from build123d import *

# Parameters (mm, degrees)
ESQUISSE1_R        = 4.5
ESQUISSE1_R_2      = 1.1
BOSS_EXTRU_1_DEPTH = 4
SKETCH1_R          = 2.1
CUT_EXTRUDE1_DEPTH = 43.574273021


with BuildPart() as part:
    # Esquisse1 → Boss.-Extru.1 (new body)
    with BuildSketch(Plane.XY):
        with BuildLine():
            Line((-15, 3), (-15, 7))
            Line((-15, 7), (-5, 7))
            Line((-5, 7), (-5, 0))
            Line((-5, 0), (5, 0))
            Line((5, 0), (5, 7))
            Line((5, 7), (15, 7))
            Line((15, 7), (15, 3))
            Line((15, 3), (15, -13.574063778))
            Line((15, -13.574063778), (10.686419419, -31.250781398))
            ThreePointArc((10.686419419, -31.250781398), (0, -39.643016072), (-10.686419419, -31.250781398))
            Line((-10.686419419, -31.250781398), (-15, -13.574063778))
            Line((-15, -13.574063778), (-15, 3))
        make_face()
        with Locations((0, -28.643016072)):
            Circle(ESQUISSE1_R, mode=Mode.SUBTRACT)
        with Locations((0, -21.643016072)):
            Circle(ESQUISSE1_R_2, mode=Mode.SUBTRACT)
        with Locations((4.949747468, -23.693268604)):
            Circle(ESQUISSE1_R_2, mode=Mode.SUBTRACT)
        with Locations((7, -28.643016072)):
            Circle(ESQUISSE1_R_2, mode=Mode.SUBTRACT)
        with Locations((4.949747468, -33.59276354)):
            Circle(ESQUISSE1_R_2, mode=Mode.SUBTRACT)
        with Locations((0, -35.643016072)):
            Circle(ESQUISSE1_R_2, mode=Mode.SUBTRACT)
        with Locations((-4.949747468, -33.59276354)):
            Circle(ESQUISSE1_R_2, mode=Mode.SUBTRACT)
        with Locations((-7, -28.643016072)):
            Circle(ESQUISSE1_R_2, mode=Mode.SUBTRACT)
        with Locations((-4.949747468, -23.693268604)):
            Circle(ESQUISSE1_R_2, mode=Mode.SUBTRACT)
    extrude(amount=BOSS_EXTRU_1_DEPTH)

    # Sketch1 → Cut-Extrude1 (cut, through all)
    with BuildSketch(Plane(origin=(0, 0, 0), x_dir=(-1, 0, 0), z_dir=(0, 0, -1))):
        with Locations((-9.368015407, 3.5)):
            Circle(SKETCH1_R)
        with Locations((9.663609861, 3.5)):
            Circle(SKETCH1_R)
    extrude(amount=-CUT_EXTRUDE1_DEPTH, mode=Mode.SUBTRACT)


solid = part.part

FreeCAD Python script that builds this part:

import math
import FreeCAD as App
import Part
import Sketcher
Q = App.Units.Quantity

doc = App.newDocument("Part")
body = doc.addObject("PartDesign::Body", "Body")

# Sketch on XY plane
sketch1 = body.newObject("Sketcher::SketchObject", "Sketch")
sketch1.AttachmentSupport = (doc.getObject("XY_Plane"), [""])
sketch1.MapMode = "FlatFace"
sketch1.addGeometry([
    Part.LineSegment(App.Vector(-5, 7, 0), App.Vector(-15, 7, 0)),  # 0
    Part.LineSegment(App.Vector(-15, 7, 0), App.Vector(-15, -13.574064, 0)),  # 1
    Part.LineSegment(App.Vector(-15, -13.574064, 0), App.Vector(-10.686419, -31.250781, 0)),  # 2
    Part.ArcOfCircle(Part.Circle(App.Vector(0, -28.643016, 0), App.Vector(0, 0, 1), 11), math.radians(-166.286351), math.radians(-13.713649)),  # 3
    Part.LineSegment(App.Vector(10.686419, -31.250781, 0), App.Vector(15, -13.574064, 0)),  # 4
    Part.LineSegment(App.Vector(15, -13.574064, 0), App.Vector(15, 7, 0)),  # 5
    Part.LineSegment(App.Vector(15, 7, 0), App.Vector(5, 7, 0)),  # 6
    Part.LineSegment(App.Vector(5, 7, 0), App.Vector(5, 0, 0)),  # 7
    Part.LineSegment(App.Vector(5, 0, 0), App.Vector(-5, 0, 0)),  # 8
    Part.LineSegment(App.Vector(-5, 0, 0), App.Vector(-5, 7, 0)),  # 9
    Part.Circle(App.Vector(4.949747, -33.592764, 0), App.Vector(0, 0, 1), 1.1),  # 10
    Part.Circle(App.Vector(0, -35.643016, 0), App.Vector(0, 0, 1), 1.1),  # 11
    Part.Circle(App.Vector(-4.949747, -33.592764, 0), App.Vector(0, 0, 1), 1.1),  # 12
    Part.Circle(App.Vector(7, -28.643016, 0), App.Vector(0, 0, 1), 1.1),  # 13
    Part.Circle(App.Vector(4.949747, -23.693269, 0), App.Vector(0, 0, 1), 1.1),  # 14
    Part.Circle(App.Vector(0, -28.643016, 0), App.Vector(0, 0, 1), 4.5),  # 15
    Part.Circle(App.Vector(-7, -28.643016, 0), App.Vector(0, 0, 1), 1.1),  # 16
    Part.Circle(App.Vector(0, -21.643016, 0), App.Vector(0, 0, 1), 1.1),  # 17
    Part.Circle(App.Vector(-4.949747, -23.693269, 0), App.Vector(0, 0, 1), 1.1),  # 18
], False)
sketch1.addConstraint([
    Sketcher.Constraint("Coincident", 0, 2, 1, 1),
    Sketcher.Constraint("Coincident", 1, 2, 2, 1),
    Sketcher.Constraint("Tangent", 2, 2, 3, 1),
    Sketcher.Constraint("Tangent", 3, 2, 4, 1),
    Sketcher.Constraint("Coincident", 4, 2, 5, 1),
    Sketcher.Constraint("Coincident", 5, 2, 6, 1),
    Sketcher.Constraint("Coincident", 6, 2, 7, 1),
    Sketcher.Constraint("Coincident", 7, 2, 8, 1),
    Sketcher.Constraint("Coincident", 8, 2, 9, 1),
    Sketcher.Constraint("Coincident", 9, 2, 0, 1),
    Sketcher.Constraint("Horizontal", 0),
    Sketcher.Constraint("Vertical", 1),
    Sketcher.Constraint("Vertical", 5),
    Sketcher.Constraint("Horizontal", 6),
    Sketcher.Constraint("Vertical", 7),
    Sketcher.Constraint("Horizontal", 8),
    Sketcher.Constraint("Vertical", 9),
    Sketcher.Constraint("Coincident", 15, 3, 3, 3),
    Sketcher.Constraint("Equal", 10, 11),
    Sketcher.Constraint("Equal", 11, 12),
    Sketcher.Constraint("Equal", 12, 13),
    Sketcher.Constraint("Equal", 13, 14),
    Sketcher.Constraint("Equal", 14, 16),
    Sketcher.Constraint("Equal", 16, 17),
    Sketcher.Constraint("Equal", 17, 18),
    Sketcher.Constraint("Symmetric", 7, 2, 8, 2, -1, 1),
    Sketcher.Constraint("Symmetric", 10, 3, 12, 3, -2),
    Sketcher.Constraint("Symmetric", 13, 3, 16, 3, -2),
    Sketcher.Constraint("Symmetric", 14, 3, 18, 3, -2),
    Sketcher.Constraint("Symmetric", 2, 2, 3, 2, -2),
    Sketcher.Constraint("Symmetric", 0, 2, 5, 2, -2),
    Sketcher.Constraint("PointOnObject", 11, 3, -2),
    Sketcher.Constraint("PointOnObject", 17, 3, -2),
    Sketcher.Constraint("Horizontal", 3, 3, 13, 3),
    Sketcher.Constraint("Vertical", 10, 3, 14, 3),
    Sketcher.Constraint("Equal", 6, 8),
    Sketcher.Constraint("Diameter", 15, Q("9 mm")),
    Sketcher.Constraint("Radius", 3, Q("11 mm")),
    Sketcher.Constraint("Diameter", 10, Q("2.2 mm")),
    Sketcher.Constraint("DistanceX", 0, 2, 0, 1, Q("10 mm")),
    Sketcher.Constraint("DistanceY", 7, 2, 7, 1, Q("7 mm")),
    Sketcher.Constraint("DistanceX", -1, 1, 13, 3, Q("7 mm")),
    Sketcher.Constraint("DistanceY", 11, 3, 3, 3, Q("7 mm")),
    Sketcher.Constraint("DistanceY", 3, 3, 17, 3, Q("7 mm")),
    Sketcher.Constraint("Distance", 2, Q("18.19542 mm")),
    Sketcher.Constraint("DistanceY", 1, 2, 1, 1, Q("20.574064 mm")),
    Sketcher.Constraint("DistanceY", 14, 3, -1, 1, Q("23.693269 mm")),
    Sketcher.Constraint("DistanceX", 2, 2, 12, 3, Q("5.736672 mm")),
    Sketcher.Constraint("DistanceY", 10, 3, -1, 1, Q("33.592764 mm")),
])
pad1 = body.newObject("PartDesign::Pad", "Pad")
pad1.Profile = sketch1
pad1.Length = 4

# Sketch on XY plane
sketch2 = body.newObject("Sketcher::SketchObject", "Sketch001")
sketch2.AttachmentSupport = (doc.getObject("XY_Plane"), [""])
sketch2.MapMode = "FlatFace"
sketch2.addGeometry([
    Part.Circle(App.Vector(9.368015, 3.5, 0), App.Vector(0, 0, 1), 2.1),
    Part.Circle(App.Vector(-9.66361, 3.5, 0), App.Vector(0, 0, 1), 2.1),
], False)
sketch2.addConstraint([
    Sketcher.Constraint("Equal", 0, 1),
    Sketcher.Constraint("Horizontal", 0, 3, 1, 3),
    Sketcher.Constraint("Diameter", 0, Q("4.2 mm")),
    Sketcher.Constraint("DistanceY", -1, 1, 0, 3, Q("3.5 mm")),
    Sketcher.Constraint("DistanceX", 1, 3, -1, 1, Q("9.66361 mm")),
    Sketcher.Constraint("DistanceX", -1, 1, 0, 3, Q("9.368015 mm")),
])
pocket1 = body.newObject("PartDesign::Pocket", "Pocket")
pocket1.Profile = sketch2
pocket1.Type = "ThroughAll"
pocket1.Reversed = True

doc.recompute()
